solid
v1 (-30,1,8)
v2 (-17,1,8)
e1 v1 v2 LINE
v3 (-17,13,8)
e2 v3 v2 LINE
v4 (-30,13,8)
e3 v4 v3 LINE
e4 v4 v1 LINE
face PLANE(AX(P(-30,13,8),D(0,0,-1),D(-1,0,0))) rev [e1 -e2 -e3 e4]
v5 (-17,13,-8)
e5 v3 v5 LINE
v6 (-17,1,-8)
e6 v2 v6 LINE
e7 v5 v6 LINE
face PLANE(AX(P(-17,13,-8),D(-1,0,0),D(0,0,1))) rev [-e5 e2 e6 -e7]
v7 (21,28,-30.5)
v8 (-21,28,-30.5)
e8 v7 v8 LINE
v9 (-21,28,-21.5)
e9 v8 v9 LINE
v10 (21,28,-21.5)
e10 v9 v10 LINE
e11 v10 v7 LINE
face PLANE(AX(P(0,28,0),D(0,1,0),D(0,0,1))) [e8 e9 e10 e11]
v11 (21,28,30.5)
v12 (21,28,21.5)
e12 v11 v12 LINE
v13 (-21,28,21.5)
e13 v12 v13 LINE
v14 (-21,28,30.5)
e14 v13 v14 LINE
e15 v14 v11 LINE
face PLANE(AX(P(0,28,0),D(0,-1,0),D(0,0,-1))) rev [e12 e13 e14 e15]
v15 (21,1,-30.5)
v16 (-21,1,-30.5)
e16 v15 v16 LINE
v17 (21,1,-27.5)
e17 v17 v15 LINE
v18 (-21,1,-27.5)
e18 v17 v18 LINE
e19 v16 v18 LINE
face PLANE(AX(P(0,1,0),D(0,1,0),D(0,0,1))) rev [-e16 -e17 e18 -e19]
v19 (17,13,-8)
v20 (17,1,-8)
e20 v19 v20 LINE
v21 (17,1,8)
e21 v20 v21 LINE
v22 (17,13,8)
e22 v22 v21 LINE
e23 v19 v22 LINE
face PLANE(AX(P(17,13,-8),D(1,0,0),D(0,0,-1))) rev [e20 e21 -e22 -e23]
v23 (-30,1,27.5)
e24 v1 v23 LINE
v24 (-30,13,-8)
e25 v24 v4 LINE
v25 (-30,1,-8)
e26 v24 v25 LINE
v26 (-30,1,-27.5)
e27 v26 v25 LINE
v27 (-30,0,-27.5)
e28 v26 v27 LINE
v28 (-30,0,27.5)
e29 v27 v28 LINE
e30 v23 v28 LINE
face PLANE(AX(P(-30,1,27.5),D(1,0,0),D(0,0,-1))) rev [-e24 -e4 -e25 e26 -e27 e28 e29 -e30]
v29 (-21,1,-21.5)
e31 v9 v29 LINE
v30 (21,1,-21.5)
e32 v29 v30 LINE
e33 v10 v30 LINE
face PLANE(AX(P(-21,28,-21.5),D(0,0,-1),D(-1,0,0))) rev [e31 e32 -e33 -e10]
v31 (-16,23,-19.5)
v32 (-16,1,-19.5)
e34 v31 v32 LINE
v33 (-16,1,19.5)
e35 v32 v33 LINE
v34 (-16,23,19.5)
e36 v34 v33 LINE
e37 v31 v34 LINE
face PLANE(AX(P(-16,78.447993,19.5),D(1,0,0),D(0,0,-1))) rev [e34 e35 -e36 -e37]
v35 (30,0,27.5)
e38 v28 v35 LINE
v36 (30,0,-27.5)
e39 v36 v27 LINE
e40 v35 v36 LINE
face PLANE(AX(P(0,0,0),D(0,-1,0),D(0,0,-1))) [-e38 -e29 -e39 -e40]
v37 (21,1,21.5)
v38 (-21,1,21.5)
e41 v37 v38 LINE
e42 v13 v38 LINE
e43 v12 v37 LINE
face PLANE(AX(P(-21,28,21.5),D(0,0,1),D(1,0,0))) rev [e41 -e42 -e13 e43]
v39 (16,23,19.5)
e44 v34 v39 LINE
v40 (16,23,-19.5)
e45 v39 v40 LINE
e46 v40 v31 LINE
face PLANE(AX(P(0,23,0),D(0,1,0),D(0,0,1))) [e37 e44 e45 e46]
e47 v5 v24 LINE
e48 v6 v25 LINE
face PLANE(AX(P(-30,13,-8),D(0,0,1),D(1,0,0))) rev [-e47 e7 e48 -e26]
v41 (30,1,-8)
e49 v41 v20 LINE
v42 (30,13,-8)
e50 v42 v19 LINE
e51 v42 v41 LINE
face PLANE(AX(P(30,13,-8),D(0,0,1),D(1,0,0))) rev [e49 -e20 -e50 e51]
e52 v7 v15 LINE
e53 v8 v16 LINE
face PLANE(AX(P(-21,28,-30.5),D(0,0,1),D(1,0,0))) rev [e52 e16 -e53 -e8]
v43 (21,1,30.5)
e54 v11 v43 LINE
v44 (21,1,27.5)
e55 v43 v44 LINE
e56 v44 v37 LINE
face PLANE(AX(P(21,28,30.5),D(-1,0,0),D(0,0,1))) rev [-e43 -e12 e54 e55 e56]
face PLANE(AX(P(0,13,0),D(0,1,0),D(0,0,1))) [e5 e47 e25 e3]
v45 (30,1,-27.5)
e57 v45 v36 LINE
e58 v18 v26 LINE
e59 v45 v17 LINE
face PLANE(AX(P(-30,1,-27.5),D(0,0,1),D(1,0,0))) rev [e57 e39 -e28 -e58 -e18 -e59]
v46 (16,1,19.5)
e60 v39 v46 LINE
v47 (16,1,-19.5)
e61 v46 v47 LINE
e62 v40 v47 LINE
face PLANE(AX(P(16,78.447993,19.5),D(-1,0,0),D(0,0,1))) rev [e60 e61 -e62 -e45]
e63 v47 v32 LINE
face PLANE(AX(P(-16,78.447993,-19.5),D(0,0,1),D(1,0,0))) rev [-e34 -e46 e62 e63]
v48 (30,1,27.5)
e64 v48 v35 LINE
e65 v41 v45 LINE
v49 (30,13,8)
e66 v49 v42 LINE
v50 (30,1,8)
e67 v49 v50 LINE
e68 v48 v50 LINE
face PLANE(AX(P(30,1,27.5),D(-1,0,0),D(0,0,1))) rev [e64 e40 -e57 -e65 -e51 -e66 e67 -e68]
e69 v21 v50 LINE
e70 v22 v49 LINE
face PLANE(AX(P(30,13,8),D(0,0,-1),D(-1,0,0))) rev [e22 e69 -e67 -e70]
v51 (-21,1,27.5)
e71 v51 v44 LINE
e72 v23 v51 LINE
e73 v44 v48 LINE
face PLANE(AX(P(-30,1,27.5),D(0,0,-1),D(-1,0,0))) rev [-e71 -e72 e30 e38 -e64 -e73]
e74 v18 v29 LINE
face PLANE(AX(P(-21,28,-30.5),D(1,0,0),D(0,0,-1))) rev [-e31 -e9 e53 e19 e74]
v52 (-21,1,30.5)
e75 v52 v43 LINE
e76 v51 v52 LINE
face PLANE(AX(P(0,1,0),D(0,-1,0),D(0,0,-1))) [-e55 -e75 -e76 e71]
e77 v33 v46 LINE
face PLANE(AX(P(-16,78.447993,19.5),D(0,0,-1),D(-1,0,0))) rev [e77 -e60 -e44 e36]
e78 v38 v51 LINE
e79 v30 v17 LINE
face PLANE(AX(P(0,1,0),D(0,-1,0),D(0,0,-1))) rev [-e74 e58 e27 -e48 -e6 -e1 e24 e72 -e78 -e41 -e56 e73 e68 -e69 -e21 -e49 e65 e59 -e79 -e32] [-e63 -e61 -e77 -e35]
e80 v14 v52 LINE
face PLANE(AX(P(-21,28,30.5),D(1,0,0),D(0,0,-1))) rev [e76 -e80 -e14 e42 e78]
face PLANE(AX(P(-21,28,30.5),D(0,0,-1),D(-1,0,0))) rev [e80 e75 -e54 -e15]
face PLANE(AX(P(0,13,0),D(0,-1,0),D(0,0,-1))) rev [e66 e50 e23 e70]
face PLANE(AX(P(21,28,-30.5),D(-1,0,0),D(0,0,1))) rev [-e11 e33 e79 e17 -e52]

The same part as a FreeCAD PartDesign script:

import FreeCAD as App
import Part
import Sketcher


def add_polygon(sketch, points):
    """Adds a closed chain of lines whose ends are joined by coincident constraints."""
    first, n = sketch.GeometryCount, len(points)
    for a, b in zip(points, points[1:] + points[:1]):
        sketch.addGeometry(Part.LineSegment(App.Vector(*a, 0), App.Vector(*b, 0)), False)
    for i in range(n):
        sketch.addConstraint(Sketcher.Constraint("Coincident", first + i, 2, first + (i + 1) % n, 1))

doc = App.newDocument("Part")
body = doc.addObject("PartDesign::Body", "Body")

sketch1 = body.newObject("Sketcher::SketchObject", "Sketch")
sketch1.AttachmentSupport = (doc.getObject("XZ_Plane"), [""])
sketch1.MapMode = "FlatFace"
add_polygon(sketch1, [(-30, -27.5), (-30, 27.5), (30, 27.5), (30, -27.5)])
sketch1.addConstraint([
    Sketcher.Constraint("Vertical", 0),
    Sketcher.Constraint("Horizontal", 1),
    Sketcher.Constraint("Vertical", 2),
    Sketcher.Constraint("Horizontal", 3),
    Sketcher.Constraint("Symmetric", 0, 2, 2, 2, -1, 1),
    Sketcher.Constraint("DistanceX", 1, 1, 1, 2, 60.0),
    Sketcher.Constraint("DistanceY", 0, 1, 0, 2, 55.0),
])
pad1 = body.newObject("PartDesign::Pad", "Pad")
pad1.Profile = sketch1
pad1.Length = 1
pad1.Reversed = True

sketch2 = body.newObject("Sketcher::SketchObject", "Sketch001")
sketch2.AttachmentSupport = (doc.getObject("XZ_Plane"), [""])
sketch2.MapMode = "FlatFace"
sketch2.AttachmentOffset = App.Placement(App.Vector(0, 0, -1), App.Rotation())
add_polygon(sketch2, [(-21, -30.5), (-21, -21.5), (21, -21.5), (21, -30.5)])
add_polygon(sketch2, [(-21, 21.5), (-21, 30.5), (21, 30.5), (21, 21.5)])
sketch2.addConstraint([
    Sketcher.Constraint("Vertical", 0),
    Sketcher.Constraint("Horizontal", 1),
    Sketcher.Constraint("Vertical", 2),
    Sketcher.Constraint("Horizontal", 3),
    Sketcher.Constraint("Vertical", 4),
    Sketcher.Constraint("Horizontal", 5),
    Sketcher.Constraint("Vertical", 6),
    Sketcher.Constraint("Horizontal", 7),
    Sketcher.Constraint("Symmetric", 2, 2, 4, 2, -1, 1),
    Sketcher.Constraint("Symmetric", 0, 2, 6, 2, -1, 1),
    Sketcher.Constraint("Vertical", 3, 2, 4, 2),
    Sketcher.Constraint("DistanceX", 1, 1, 1, 2, 42.0),
    Sketcher.Constraint("DistanceY", 0, 1, 0, 2, 9.0),
    Sketcher.Constraint("DistanceY", 0, 2, 4, 2, 52.0),
])
pad2 = body.newObject("PartDesign::Pad", "Pad001")
pad2.Profile = sketch2
pad2.Length = 27
pad2.Reversed = True

sketch3 = body.newObject("Sketcher::SketchObject", "Sketch002")
sketch3.AttachmentSupport = (doc.getObject("XZ_Plane"), [""])
sketch3.MapMode = "FlatFace"
sketch3.AttachmentOffset = App.Placement(App.Vector(0, 0, -1), App.Rotation())
add_polygon(sketch3, [(-30, -8), (-30, 8), (-17, 8), (-17, -8)])
add_polygon(sketch3, [(17, -8), (17, 8), (30, 8), (30, -8)])
sketch3.addConstraint([
    Sketcher.Constraint("Vertical", 0),
    Sketcher.Constraint("Horizontal", 1),
    Sketcher.Constraint("Vertical", 2),
    Sketcher.Constraint("Horizontal", 3),
    Sketcher.Constraint("Vertical", 4),
    Sketcher.Constraint("Horizontal", 5),
    Sketcher.Constraint("Vertical", 6),
    Sketcher.Constraint("Horizontal", 7),
    Sketcher.Constraint("Symmetric", 2, 2, 4, 2, -1, 1),
    Sketcher.Constraint("Symmetric", 0, 2, 6, 2, -1, 1),
    Sketcher.Constraint("Horizontal", 1, 2, 4, 2),
    Sketcher.Constraint("DistanceX", 1, 1, 1, 2, 13.0),
    Sketcher.Constraint("DistanceY", 0, 1, 0, 2, 16.0),
    Sketcher.Constraint("DistanceX", 0, 2, -1, 1, 30.0),
])
pad3 = body.newObject("PartDesign::Pad", "Pad002")
pad3.Profile = sketch3
pad3.Length = 12
pad3.Reversed = True

sketch4 = body.newObject("Sketcher::SketchObject", "Sketch003")
sketch4.AttachmentSupport = (doc.getObject("XZ_Plane"), [""])
sketch4.MapMode = "FlatFace"
sketch4.AttachmentOffset = App.Placement(App.Vector(0, 0, -1), App.Rotation())
add_polygon(sketch4, [(-16, -19.5), (-16, 19.5), (16, 19.5), (16, -19.5)])
sketch4.addConstraint([
    Sketcher.Constraint("Vertical", 0),
    Sketcher.Constraint("Horizontal", 1),
    Sketcher.Constraint("Vertical", 2),
    Sketcher.Constraint("Horizontal", 3),
    Sketcher.Constraint("Symmetric", 0, 2, 2, 2, -1, 1),
    Sketcher.Constraint("DistanceX", 1, 1, 1, 2, 32.0),
    Sketcher.Constraint("DistanceY", 0, 1, 0, 2, 39.0),
])
pad4 = body.newObject("PartDesign::Pad", "Pad003")
pad4.Profile = sketch4
pad4.Length = 22
pad4.Reversed = True

doc.recompute()
